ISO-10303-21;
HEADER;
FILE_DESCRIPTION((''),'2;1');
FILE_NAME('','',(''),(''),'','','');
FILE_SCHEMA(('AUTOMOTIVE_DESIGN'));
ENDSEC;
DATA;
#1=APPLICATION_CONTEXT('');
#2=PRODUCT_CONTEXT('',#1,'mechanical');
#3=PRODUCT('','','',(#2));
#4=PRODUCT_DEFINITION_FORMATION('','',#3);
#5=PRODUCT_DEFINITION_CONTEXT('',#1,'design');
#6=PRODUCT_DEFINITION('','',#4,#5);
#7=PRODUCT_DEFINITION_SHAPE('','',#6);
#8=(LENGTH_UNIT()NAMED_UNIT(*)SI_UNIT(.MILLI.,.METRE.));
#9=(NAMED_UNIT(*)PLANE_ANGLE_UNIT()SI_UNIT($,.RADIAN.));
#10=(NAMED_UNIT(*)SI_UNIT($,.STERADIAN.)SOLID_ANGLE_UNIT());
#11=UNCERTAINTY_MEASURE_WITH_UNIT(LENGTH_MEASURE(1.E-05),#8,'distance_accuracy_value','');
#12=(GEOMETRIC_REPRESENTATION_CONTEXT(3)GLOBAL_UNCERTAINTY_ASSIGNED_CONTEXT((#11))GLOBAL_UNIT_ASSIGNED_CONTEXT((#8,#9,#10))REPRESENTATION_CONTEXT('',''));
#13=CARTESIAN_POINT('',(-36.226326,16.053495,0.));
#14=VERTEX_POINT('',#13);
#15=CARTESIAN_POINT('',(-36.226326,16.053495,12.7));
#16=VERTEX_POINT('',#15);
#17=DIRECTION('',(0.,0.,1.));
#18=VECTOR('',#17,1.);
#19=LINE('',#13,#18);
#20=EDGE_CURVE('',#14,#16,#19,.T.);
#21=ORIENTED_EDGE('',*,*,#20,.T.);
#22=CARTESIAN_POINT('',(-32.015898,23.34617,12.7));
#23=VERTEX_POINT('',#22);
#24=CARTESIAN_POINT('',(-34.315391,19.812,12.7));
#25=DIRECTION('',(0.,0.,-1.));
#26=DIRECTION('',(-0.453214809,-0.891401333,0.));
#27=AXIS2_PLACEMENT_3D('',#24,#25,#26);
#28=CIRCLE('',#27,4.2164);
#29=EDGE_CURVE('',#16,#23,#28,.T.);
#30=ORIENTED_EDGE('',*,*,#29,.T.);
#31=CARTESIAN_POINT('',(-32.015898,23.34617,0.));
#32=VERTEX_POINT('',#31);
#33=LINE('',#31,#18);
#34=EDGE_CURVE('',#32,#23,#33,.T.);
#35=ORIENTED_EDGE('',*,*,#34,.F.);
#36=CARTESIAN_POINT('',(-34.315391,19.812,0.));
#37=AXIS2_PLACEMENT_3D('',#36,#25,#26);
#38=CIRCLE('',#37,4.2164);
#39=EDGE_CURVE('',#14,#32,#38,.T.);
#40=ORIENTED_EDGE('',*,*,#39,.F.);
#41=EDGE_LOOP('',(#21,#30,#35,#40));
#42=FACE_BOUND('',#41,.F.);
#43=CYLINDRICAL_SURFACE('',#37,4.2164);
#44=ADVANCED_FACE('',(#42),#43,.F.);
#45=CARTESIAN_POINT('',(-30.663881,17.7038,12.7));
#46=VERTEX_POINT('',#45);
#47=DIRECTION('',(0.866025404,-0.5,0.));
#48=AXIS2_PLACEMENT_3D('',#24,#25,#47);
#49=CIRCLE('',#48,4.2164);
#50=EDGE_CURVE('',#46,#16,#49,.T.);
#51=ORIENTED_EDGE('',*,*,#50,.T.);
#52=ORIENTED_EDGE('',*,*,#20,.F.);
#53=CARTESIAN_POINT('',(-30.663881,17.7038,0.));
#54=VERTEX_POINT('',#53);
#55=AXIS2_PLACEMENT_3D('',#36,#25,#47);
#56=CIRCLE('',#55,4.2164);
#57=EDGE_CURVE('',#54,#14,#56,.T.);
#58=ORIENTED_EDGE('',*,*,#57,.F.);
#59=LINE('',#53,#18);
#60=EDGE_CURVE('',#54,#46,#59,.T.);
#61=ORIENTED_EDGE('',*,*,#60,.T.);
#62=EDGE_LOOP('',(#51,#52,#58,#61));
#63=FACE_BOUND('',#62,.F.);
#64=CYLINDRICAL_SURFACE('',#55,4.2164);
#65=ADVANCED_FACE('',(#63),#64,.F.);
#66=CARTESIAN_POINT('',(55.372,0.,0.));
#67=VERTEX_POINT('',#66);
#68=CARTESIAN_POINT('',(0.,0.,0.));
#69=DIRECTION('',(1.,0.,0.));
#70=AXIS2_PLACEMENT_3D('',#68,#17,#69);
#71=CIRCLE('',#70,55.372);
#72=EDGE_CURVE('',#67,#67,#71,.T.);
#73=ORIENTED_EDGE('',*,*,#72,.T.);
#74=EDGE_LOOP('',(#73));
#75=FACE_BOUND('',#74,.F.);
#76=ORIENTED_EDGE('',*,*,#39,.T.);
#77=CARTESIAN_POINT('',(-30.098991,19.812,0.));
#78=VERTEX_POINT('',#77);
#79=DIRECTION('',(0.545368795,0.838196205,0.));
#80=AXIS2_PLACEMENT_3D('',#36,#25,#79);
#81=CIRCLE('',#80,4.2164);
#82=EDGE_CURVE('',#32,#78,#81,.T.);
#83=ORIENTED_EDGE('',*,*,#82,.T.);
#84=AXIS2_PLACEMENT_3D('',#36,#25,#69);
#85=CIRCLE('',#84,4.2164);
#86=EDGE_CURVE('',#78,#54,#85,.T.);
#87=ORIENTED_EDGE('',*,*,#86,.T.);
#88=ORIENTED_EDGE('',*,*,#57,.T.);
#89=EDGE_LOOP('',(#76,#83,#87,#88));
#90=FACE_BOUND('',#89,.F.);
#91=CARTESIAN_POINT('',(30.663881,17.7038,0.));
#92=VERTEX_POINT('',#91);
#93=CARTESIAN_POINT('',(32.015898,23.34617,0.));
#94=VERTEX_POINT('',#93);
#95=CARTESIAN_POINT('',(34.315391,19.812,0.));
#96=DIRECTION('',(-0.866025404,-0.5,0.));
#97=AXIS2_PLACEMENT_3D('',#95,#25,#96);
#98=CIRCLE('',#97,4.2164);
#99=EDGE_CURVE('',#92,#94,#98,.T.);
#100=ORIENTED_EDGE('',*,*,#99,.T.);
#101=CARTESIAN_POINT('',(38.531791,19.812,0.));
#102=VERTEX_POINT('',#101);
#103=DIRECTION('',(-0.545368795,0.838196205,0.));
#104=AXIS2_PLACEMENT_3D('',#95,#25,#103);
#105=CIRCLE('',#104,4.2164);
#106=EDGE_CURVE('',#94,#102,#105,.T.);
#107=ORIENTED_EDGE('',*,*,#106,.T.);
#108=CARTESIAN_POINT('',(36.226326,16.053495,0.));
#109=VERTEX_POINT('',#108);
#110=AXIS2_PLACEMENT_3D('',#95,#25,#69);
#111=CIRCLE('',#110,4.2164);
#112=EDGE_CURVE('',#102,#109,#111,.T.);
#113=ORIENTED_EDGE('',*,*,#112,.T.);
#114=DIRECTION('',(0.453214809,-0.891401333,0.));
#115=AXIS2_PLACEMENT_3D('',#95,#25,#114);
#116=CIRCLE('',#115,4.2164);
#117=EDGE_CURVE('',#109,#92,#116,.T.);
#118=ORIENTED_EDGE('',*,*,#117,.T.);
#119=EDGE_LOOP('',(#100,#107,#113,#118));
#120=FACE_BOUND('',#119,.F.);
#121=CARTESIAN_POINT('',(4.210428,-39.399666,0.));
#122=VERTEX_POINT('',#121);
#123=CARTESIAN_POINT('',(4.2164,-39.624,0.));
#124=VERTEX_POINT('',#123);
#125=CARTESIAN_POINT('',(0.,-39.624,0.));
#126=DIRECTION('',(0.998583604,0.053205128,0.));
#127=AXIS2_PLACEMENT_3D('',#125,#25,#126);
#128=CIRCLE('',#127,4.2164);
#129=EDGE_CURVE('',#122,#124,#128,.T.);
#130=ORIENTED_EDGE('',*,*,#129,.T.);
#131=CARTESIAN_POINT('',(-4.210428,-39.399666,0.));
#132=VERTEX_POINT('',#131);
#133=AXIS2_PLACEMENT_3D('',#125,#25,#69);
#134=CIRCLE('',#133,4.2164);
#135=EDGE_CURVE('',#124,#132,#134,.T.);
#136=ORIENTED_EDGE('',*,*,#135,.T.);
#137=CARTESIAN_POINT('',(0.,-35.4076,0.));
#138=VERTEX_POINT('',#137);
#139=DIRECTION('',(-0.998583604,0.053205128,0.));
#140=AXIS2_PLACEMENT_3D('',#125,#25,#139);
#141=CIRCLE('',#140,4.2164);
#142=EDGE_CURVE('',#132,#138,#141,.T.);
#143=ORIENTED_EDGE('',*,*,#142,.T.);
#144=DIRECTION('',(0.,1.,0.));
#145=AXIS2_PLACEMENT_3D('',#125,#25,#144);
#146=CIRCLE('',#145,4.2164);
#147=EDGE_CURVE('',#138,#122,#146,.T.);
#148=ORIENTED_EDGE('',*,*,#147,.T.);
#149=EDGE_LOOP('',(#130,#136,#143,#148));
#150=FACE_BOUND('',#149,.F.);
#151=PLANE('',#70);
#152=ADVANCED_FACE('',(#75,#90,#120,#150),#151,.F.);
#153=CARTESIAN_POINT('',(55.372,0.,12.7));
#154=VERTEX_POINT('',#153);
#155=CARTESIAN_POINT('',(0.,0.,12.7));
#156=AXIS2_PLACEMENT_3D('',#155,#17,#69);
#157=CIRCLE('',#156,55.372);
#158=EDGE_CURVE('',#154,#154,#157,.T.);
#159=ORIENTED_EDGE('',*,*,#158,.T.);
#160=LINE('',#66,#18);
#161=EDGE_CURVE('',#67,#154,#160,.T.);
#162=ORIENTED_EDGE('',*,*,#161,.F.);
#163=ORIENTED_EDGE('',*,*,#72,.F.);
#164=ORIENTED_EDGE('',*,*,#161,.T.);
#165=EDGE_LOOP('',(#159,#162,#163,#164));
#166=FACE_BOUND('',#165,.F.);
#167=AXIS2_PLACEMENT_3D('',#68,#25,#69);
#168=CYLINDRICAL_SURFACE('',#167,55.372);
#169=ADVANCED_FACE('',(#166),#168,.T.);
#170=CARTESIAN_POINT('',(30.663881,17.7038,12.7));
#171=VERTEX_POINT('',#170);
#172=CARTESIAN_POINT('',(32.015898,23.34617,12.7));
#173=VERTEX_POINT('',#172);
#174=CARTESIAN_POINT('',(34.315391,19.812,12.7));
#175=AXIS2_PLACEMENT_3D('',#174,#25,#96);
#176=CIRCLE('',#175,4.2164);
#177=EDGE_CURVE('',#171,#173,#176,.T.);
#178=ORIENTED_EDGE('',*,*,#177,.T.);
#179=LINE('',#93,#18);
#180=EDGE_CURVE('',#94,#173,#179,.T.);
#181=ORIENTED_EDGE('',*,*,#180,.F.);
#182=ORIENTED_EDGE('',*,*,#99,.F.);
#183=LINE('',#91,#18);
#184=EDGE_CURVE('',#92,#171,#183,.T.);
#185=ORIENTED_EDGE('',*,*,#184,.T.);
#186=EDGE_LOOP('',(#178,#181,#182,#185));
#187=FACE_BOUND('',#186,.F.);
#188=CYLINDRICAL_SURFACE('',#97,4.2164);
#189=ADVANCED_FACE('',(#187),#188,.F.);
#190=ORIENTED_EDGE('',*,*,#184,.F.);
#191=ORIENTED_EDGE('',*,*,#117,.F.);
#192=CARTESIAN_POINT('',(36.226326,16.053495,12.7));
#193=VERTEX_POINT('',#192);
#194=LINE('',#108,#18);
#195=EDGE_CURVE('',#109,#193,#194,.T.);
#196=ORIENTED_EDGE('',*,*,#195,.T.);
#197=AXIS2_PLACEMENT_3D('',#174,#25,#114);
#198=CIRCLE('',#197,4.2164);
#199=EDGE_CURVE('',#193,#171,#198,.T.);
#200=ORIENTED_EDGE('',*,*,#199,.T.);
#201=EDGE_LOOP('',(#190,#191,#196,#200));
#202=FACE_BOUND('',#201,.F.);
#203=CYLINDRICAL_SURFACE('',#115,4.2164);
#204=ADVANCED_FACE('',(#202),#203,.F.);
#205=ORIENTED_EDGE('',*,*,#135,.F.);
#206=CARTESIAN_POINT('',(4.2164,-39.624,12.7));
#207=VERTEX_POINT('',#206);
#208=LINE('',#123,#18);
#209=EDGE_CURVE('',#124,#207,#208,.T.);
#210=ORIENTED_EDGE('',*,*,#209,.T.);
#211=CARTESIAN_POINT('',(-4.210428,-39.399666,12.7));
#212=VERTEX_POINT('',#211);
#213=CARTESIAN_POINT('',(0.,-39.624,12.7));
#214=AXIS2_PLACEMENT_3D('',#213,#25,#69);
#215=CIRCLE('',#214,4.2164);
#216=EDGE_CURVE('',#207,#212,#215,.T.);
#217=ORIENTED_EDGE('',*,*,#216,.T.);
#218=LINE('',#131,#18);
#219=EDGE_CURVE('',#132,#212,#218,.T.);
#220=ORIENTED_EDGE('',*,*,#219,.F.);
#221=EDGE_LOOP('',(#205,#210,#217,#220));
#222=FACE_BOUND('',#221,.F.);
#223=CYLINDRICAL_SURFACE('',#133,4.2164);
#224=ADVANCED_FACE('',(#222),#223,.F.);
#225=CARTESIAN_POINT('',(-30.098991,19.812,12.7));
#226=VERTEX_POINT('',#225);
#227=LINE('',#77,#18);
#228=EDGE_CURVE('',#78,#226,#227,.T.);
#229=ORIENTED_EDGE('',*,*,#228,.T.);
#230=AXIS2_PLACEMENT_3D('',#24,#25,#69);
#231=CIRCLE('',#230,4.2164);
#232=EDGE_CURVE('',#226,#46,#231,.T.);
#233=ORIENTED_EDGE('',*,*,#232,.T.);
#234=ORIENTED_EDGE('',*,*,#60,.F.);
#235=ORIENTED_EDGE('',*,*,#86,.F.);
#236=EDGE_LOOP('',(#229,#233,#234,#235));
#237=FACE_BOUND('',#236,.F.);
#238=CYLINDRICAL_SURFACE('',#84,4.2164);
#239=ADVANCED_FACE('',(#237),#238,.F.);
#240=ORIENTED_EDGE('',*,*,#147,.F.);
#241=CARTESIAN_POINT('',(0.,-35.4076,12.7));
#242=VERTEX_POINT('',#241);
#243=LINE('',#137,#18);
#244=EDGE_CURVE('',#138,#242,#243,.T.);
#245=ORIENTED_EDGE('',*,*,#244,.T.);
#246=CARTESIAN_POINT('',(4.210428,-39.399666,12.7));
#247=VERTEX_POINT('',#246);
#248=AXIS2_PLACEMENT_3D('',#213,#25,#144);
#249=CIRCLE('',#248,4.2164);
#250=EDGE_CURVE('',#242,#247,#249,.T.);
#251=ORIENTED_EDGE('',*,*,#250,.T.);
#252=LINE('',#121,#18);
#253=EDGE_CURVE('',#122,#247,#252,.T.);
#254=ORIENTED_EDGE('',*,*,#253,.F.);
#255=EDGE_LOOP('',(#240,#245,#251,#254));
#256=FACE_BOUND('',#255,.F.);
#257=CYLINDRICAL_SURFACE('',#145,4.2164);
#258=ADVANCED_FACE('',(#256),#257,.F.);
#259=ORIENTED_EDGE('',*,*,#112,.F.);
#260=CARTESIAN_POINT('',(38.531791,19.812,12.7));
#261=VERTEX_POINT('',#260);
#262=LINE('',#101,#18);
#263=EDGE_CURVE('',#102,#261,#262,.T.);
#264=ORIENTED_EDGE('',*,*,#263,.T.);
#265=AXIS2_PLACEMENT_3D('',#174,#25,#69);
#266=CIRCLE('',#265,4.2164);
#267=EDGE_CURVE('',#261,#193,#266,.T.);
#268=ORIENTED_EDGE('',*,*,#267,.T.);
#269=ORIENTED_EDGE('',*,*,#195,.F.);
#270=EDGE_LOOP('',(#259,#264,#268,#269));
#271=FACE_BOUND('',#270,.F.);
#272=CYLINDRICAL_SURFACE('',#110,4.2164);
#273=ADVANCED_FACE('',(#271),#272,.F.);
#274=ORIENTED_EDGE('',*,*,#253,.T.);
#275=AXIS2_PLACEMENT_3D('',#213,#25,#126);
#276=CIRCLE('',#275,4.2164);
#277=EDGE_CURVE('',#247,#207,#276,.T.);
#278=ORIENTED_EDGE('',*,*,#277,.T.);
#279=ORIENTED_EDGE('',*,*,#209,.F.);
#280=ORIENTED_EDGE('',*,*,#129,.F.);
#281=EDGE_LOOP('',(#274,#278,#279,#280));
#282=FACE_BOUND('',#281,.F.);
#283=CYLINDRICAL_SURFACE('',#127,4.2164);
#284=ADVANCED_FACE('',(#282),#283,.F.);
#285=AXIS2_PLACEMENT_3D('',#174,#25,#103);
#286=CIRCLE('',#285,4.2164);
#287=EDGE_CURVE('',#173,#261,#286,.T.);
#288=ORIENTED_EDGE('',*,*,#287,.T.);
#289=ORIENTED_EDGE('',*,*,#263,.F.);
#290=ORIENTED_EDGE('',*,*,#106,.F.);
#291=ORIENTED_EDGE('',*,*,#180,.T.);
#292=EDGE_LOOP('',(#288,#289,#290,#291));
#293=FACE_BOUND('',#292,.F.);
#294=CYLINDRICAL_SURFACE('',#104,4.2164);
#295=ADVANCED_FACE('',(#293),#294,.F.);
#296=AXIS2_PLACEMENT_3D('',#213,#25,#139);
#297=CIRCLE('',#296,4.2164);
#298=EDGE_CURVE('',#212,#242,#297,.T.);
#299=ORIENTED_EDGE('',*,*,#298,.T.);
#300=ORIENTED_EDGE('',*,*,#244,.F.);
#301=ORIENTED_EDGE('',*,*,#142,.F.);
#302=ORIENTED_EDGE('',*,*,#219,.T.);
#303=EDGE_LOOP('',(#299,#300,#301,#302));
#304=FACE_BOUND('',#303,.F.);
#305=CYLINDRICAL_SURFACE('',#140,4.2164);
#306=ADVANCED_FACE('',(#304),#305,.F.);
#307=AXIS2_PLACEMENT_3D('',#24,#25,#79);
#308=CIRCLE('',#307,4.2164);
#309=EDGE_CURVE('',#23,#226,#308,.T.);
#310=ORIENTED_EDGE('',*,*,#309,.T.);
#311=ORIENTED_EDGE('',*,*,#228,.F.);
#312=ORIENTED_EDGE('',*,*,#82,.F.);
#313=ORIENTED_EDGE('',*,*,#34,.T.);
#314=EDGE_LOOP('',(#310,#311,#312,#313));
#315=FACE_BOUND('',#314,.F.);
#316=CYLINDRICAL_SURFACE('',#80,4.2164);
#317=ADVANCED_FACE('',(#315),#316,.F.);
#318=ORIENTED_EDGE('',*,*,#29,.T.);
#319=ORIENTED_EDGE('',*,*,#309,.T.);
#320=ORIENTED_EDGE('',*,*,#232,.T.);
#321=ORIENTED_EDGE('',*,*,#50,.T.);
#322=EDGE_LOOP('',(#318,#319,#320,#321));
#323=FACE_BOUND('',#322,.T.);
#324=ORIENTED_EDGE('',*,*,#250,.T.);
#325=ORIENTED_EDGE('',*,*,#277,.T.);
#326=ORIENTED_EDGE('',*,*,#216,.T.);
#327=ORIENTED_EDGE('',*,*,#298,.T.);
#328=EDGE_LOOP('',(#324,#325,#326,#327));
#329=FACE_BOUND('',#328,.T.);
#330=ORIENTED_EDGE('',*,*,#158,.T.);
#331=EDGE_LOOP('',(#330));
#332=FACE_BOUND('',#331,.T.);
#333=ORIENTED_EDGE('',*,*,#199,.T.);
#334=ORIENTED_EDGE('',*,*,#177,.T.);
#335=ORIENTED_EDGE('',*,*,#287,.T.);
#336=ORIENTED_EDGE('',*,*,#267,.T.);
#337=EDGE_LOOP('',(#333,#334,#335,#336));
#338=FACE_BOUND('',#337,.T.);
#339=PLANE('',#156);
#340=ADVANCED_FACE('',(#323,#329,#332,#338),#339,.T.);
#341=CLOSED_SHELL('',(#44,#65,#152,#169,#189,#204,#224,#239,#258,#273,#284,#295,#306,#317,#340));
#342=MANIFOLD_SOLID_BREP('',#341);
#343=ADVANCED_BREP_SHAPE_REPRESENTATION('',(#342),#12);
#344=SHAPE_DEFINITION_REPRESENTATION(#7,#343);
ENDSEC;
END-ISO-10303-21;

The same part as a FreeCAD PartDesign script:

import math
import FreeCAD as App
import Part
import Sketcher
from FreeCAD import Vector
Q = App.Units.Quantity

doc = App.newDocument("Part")
params = doc.addObject("Spreadsheet::Sheet", "Params")
for row, (alias, value) in enumerate([
    ("sketch1_diameter", "4.36 in"),
    ("sketch1_radius", "0.166 in"),
    ("pad1_length", "0.5 in"),
], start=1):
    params.set(f"A{row}", alias)
    params.set(f"B{row}", "=" + value)
    params.setAlias(f"B{row}", alias)

body = doc.addObject("PartDesign::Body", "Body")

# Sketch on XY plane
sketch1 = body.newObject("Sketcher::SketchObject", "Sketch")
sketch1.AttachmentSupport = (doc.getObject("XY_Plane"), [""])
sketch1.MapMode = "FlatFace"
sketch1.addGeometry(Part.Circle(Vector(0, 0, 0), Vector(0, 0, 1), 55.37), False)
sketch1.addGeometry(Part.ArcOfCircle(Part.Circle(Vector(34.32, 19.81, 0), Vector(0, 0, 1), 4.22), math.radians(-63), math.radians(0)), False)
sketch1.addGeometry(Part.ArcOfCircle(Part.Circle(Vector(34.32, 19.81, 0), Vector(0, 0, 1), 4.22), math.radians(-150), math.radians(-63)), False)
sketch1.addGeometry(Part.ArcOfCircle(Part.Circle(Vector(34.32, 19.81, 0), Vector(0, 0, 1), 4.22), math.radians(123), math.radians(210)), False)
sketch1.addGeometry(Part.ArcOfCircle(Part.Circle(Vector(34.32, 19.81, 0), Vector(0, 0, 1), 4.22), math.radians(0), math.radians(123)), False)
sketch1.addGeometry(Part.ArcOfCircle(Part.Circle(Vector(0, -39.62, 0), Vector(0, 0, 1), 4.22), math.radians(0), math.radians(3.05)), False)
sketch1.addGeometry(Part.ArcOfCircle(Part.Circle(Vector(0, -39.62, 0), Vector(0, 0, 1), 4.22), math.radians(177), math.radians(360)), False)
sketch1.addGeometry(Part.ArcOfCircle(Part.Circle(Vector(0, -39.62, 0), Vector(0, 0, 1), 4.22), math.radians(90), math.radians(177)), False)
sketch1.addGeometry(Part.ArcOfCircle(Part.Circle(Vector(0, -39.62, 0), Vector(0, 0, 1), 4.22), math.radians(3), math.radians(90)), False)
sketch1.addGeometry(Part.ArcOfCircle(Part.Circle(Vector(-34.32, 19.81, 0), Vector(0, 0, 1), 4.22), math.radians(57), math.radians(243)), False)
sketch1.addGeometry(Part.ArcOfCircle(Part.Circle(Vector(-34.32, 19.81, 0), Vector(0, 0, 1), 4.22), math.radians(0), math.radians(57)), False)
sketch1.addGeometry(Part.ArcOfCircle(Part.Circle(Vector(-34.32, 19.81, 0), Vector(0, 0, 1), 4.22), math.radians(-30), math.radians(0)), False)
sketch1.addGeometry(Part.ArcOfCircle(Part.Circle(Vector(-34.32, 19.81, 0), Vector(0, 0, 1), 4.22), math.radians(-117), math.radians(-30)), False)
sketch1.addConstraint(Sketcher.Constraint("Tangent", 1, 1, 2, 2))
sketch1.addConstraint(Sketcher.Constraint("Tangent", 2, 1, 3, 2))
sketch1.addConstraint(Sketcher.Constraint("Tangent", 3, 1, 4, 2))
sketch1.addConstraint(Sketcher.Constraint("Tangent", 4, 1, 1, 2))
sketch1.addConstraint(Sketcher.Constraint("Tangent", 5, 1, 6, 2))
sketch1.addConstraint(Sketcher.Constraint("Tangent", 6, 1, 7, 2))
sketch1.addConstraint(Sketcher.Constraint("Tangent", 7, 1, 8, 2))
sketch1.addConstraint(Sketcher.Constraint("Tangent", 8, 1, 5, 2))
sketch1.addConstraint(Sketcher.Constraint("Tangent", 9, 1, 10, 2))
sketch1.addConstraint(Sketcher.Constraint("Tangent", 10, 1, 11, 2))
sketch1.addConstraint(Sketcher.Constraint("Tangent", 11, 1, 12, 2))
sketch1.addConstraint(Sketcher.Constraint("Tangent", 12, 1, 9, 2))
sketch1.addConstraint(Sketcher.Constraint("Coincident", 0, 3, -1, 1))
sketch1.addConstraint(Sketcher.Constraint("Equal", 1, 2))
sketch1.addConstraint(Sketcher.Constraint("Equal", 4, 5))
sketch1.addConstraint(Sketcher.Constraint("Equal", 5, 6))
sketch1.addConstraint(Sketcher.Constraint("Equal", 8, 9))
sketch1.addConstraint(Sketcher.Constraint("Equal", 9, 10))
sketch1.addConstraint(Sketcher.Constraint("Symmetric", 1, 3, 9, 3, -2))
sketch1.addConstraint(Sketcher.Constraint("Symmetric", 6, 1, 8, 1, -2))
sketch1.addConstraint(Sketcher.Constraint("PointOnObject", 7, 1, -2))
sketch1.addConstraint(Sketcher.Constraint("Horizontal", 12, 3, 4, 1))
sketch1.addConstraint(Sketcher.Constraint("Horizontal", 8, 3, 5, 1))
sketch1.addConstraint(Sketcher.Constraint("Horizontal", 3, 1, 9, 1))
sketch1.addConstraint(Sketcher.Constraint("Horizontal", 4, 1, 10, 1))
sketch1.addConstraint(Sketcher.Constraint("Horizontal", 2, 1, 11, 1))
sketch1.addConstraint(Sketcher.Constraint("Horizontal", 1, 1, 12, 1))
sketch1.addConstraint(Sketcher.Constraint("Diameter", 0, Q("4.36 in")))
sketch1.addConstraint(Sketcher.Constraint("Radius", 1, Q("0.166 in")))
sketch1.addConstraint(Sketcher.Constraint("DistanceY", -1, 1, 1, 3, Q("0.78 in")))
sketch1.addConstraint(Sketcher.Constraint("DistanceY", 5, 3, -1, 1, Q("1.56 in")))
sketch1.addConstraint(Sketcher.Constraint("DistanceY", -1, 1, 2, 1, Q("0.697 in")))
sketch1.addConstraint(Sketcher.Constraint("DistanceX", -1, 1, 1, 3, 34.315391))
sketch1.addConstraint(Sketcher.Constraint("DistanceY", -1, 1, 3, 1, 23.34617))
sketch1.addConstraint(Sketcher.Constraint("DistanceX", -1, 1, 1, 1, 36.226326))
sketch1.addConstraint(Sketcher.Constraint("DistanceX", 6, 1, -1, 1, 4.210428))
sketch1.setExpression("Constraints[27]", "Params.sketch1_diameter")
sketch1.setExpression("Constraints[28]", "Params.sketch1_radius")
pad1 = body.newObject("PartDesign::Pad", "Pad")
pad1.Profile = sketch1
pad1.setExpression("Length", "Params.pad1_length")

doc.recompute()
